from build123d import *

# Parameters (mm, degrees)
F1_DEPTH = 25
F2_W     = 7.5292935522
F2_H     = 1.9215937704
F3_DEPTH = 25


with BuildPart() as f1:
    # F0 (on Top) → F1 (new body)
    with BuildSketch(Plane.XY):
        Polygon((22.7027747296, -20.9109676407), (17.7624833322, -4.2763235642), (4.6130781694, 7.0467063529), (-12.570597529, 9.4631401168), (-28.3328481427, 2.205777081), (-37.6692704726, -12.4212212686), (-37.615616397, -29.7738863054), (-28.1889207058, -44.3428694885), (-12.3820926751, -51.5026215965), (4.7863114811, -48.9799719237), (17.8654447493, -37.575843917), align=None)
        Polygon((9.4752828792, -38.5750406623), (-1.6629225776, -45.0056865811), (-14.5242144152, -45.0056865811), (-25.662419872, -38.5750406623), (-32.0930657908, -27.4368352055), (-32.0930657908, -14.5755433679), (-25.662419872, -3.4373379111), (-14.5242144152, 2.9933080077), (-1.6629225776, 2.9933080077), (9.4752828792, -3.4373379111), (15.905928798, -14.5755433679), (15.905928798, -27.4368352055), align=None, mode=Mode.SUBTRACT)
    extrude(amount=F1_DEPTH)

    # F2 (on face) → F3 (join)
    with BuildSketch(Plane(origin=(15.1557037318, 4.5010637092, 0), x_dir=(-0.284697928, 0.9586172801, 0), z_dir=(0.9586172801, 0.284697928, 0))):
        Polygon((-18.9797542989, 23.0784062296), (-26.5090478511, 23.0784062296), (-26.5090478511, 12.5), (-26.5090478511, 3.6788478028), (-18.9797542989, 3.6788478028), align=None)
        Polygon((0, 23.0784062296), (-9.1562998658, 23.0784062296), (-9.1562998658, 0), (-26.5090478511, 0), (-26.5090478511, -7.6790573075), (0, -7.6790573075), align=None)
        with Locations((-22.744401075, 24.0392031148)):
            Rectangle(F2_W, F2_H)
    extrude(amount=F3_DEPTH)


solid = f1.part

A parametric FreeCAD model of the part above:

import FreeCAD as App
import Part
import Sketcher

V = App.Vector
Q = App.Units.Quantity

doc = App.newDocument("Part")
params = doc.addObject("Spreadsheet::Sheet", "Params")
for row, (alias, value) in enumerate([
    ("pad1_length", "25 mm"),
    ("pad2_length", "25 mm"),
], start=1):
    params.set(f"A{row}", alias)
    params.set(f"B{row}", "=" + value)
    params.setAlias(f"B{row}", alias)

body = doc.addObject("PartDesign::Body", "Body")
body.AllowCompound = True

# Sketch on XY plane
sketch1 = body.newObject("Sketcher::SketchObject", "Sketch")
sketch1.AttachmentSupport = (doc.getObject("XY_Plane"), [""])
sketch1.MapMode = "FlatFace"
sketch1.addGeometry(Part.LineSegment(V(23, -21, 0), V(18, -4, 0)), False)
sketch1.addGeometry(Part.LineSegment(V(18, -4, 0), V(5, 7, 0)), False)
sketch1.addGeometry(Part.LineSegment(V(5, 7, 0), V(-13, 9, 0)), False)
sketch1.addGeometry(Part.LineSegment(V(-13, 9, 0), V(-28, 2, 0)), False)
sketch1.addGeometry(Part.LineSegment(V(-28, 2, 0), V(-38, -12, 0)), False)
sketch1.addGeometry(Part.LineSegment(V(-38, -12, 0), V(-38, -30, 0)), False)
sketch1.addGeometry(Part.LineSegment(V(-38, -30, 0), V(-28, -44, 0)), False)
sketch1.addGeometry(Part.LineSegment(V(-28, -44, 0), V(-12, -52, 0)), False)
sketch1.addGeometry(Part.LineSegment(V(-12, -52, 0), V(5, -49, 0)), False)
sketch1.addGeometry(Part.LineSegment(V(5, -49, 0), V(18, -38, 0)), False)
sketch1.addGeometry(Part.LineSegment(V(18, -38, 0), V(23, -21, 0)), False)
sketch1.addGeometry(Part.LineSegment(V(16, -27, 0), V(9, -39, 0)), False)
sketch1.addGeometry(Part.LineSegment(V(9, -39, 0), V(-2, -45, 0)), False)
sketch1.addGeometry(Part.LineSegment(V(-2, -45, 0), V(-15, -45, 0)), False)
sketch1.addGeometry(Part.LineSegment(V(-15, -45, 0), V(-26, -39, 0)), False)
sketch1.addGeometry(Part.LineSegment(V(-26, -39, 0), V(-32, -27, 0)), False)
sketch1.addGeometry(Part.LineSegment(V(-32, -27, 0), V(-32, -15, 0)), False)
sketch1.addGeometry(Part.LineSegment(V(-32, -15, 0), V(-26, -3, 0)), False)
sketch1.addGeometry(Part.LineSegment(V(-26, -3, 0), V(-15, 3, 0)), False)
sketch1.addGeometry(Part.LineSegment(V(-15, 3, 0), V(-2, 3, 0)), False)
sketch1.addGeometry(Part.LineSegment(V(-2, 3, 0), V(9, -3, 0)), False)
sketch1.addGeometry(Part.LineSegment(V(9, -3, 0), V(16, -15, 0)), False)
sketch1.addGeometry(Part.LineSegment(V(16, -15, 0), V(16, -27, 0)), False)
sketch1.addConstraint(Sketcher.Constraint("Coincident", 0, 2, 1, 1))
sketch1.addConstraint(Sketcher.Constraint("Coincident", 1, 2, 2, 1))
sketch1.addConstraint(Sketcher.Constraint("Coincident", 2, 2, 3, 1))
sketch1.addConstraint(Sketcher.Constraint("Coincident", 3, 2, 4, 1))
sketch1.addConstraint(Sketcher.Constraint("Coincident", 4, 2, 5, 1))
sketch1.addConstraint(Sketcher.Constraint("Coincident", 5, 2, 6, 1))
sketch1.addConstraint(Sketcher.Constraint("Coincident", 6, 2, 7, 1))
sketch1.addConstraint(Sketcher.Constraint("Coincident", 7, 2, 8, 1))
sketch1.addConstraint(Sketcher.Constraint("Coincident", 8, 2, 9, 1))
sketch1.addConstraint(Sketcher.Constraint("Coincident", 9, 2, 10, 1))
sketch1.addConstraint(Sketcher.Constraint("Coincident", 10, 2, 0, 1))
sketch1.addConstraint(Sketcher.Constraint("Coincident", 11, 2, 12, 1))
sketch1.addConstraint(Sketcher.Constraint("Coincident", 12, 2, 13, 1))
sketch1.addConstraint(Sketcher.Constraint("Coincident", 13, 2, 14, 1))
sketch1.addConstraint(Sketcher.Constraint("Coincident", 14, 2, 15, 1))
sketch1.addConstraint(Sketcher.Constraint("Coincident", 15, 2, 16, 1))
sketch1.addConstraint(Sketcher.Constraint("Coincident", 16, 2, 17, 1))
sketch1.addConstraint(Sketcher.Constraint("Coincident", 17, 2, 18, 1))
sketch1.addConstraint(Sketcher.Constraint("Coincident", 18, 2, 19, 1))
sketch1.addConstraint(Sketcher.Constraint("Coincident", 19, 2, 20, 1))
sketch1.addConstraint(Sketcher.Constraint("Coincident", 20, 2, 21, 1))
sketch1.addConstraint(Sketcher.Constraint("Coincident", 21, 2, 22, 1))
sketch1.addConstraint(Sketcher.Constraint("Coincident", 22, 2, 11, 1))
sketch1.addConstraint(Sketcher.Constraint("Horizontal", 13))
sketch1.addConstraint(Sketcher.Constraint("Vertical", 16))
sketch1.addConstraint(Sketcher.Constraint("Horizontal", 19))
sketch1.addConstraint(Sketcher.Constraint("Vertical", 22))
sketch1.addConstraint(Sketcher.Constraint("Perpendicular", 11, 14))
sketch1.addConstraint(Sketcher.Constraint("Perpendicular", 12, 15))
sketch1.addConstraint(Sketcher.Constraint("Perpendicular", 14, 17))
sketch1.addConstraint(Sketcher.Constraint("Perpendicular", 15, 18))
sketch1.addConstraint(Sketcher.Constraint("Perpendicular", 17, 20))
sketch1.addConstraint(Sketcher.Constraint("Perpendicular", 18, 21))
sketch1.addConstraint(Sketcher.Constraint("Horizontal", 11, 2, 14, 2))
sketch1.addConstraint(Sketcher.Constraint("Horizontal", 17, 2, 20, 2))
sketch1.addConstraint(Sketcher.Constraint("Horizontal", 16, 2, 21, 2))
sketch1.addConstraint(Sketcher.Constraint("Horizontal", 15, 2, 22, 2))
sketch1.addConstraint(Sketcher.Constraint("Vertical", 14, 2, 17, 2))
sketch1.addConstraint(Sketcher.Constraint("Vertical", 13, 2, 18, 2))
sketch1.addConstraint(Sketcher.Constraint("Vertical", 12, 2, 19, 2))
sketch1.addConstraint(Sketcher.Constraint("Equal", 19, 16))
sketch1.addConstraint(Sketcher.Constraint("Equal", 0, 1))
sketch1.addConstraint(Sketcher.Constraint("Equal", 1, 2))
sketch1.addConstraint(Sketcher.Constraint("Equal", 2, 3))
sketch1.addConstraint(Sketcher.Constraint("Equal", 3, 4))
sketch1.addConstraint(Sketcher.Constraint("Equal", 4, 5))
sketch1.addConstraint(Sketcher.Constraint("Equal", 5, 6))
sketch1.addConstraint(Sketcher.Constraint("Equal", 6, 7))
sketch1.addConstraint(Sketcher.Constraint("Equal", 7, 8))
sketch1.addConstraint(Sketcher.Constraint("Equal", 8, 9))
sketch1.addConstraint(Sketcher.Constraint("Equal", 9, 10))
sketch1.addConstraint(Sketcher.Constraint("Equal", 11, 12))
sketch1.addConstraint(Sketcher.Constraint("Angle", 11, Q("-120 deg")))
sketch1.addConstraint(Sketcher.Constraint("DistanceY", 4, 2, 3, 2, 14.626998))
sketch1.addConstraint(Sketcher.Constraint("DistanceX", 6, 2, 1, 2, 32.801999))
sketch1.addConstraint(Sketcher.Constraint("DistanceX", 6, 2, 12, 2, 26.525998))
sketch1.addConstraint(Sketcher.Constraint("DistanceX", 13, 2, 13, 1, 12.861292))
sketch1.addConstraint(Sketcher.Constraint("DistanceY", 0, 2, 3, 2, 6.482101))
sketch1.addConstraint(Sketcher.Constraint("DistanceX", 5, 2, 0, 2, 55.3781))
sketch1.addConstraint(Sketcher.Constraint("DistanceY", 7, 2, 4, 2, 39.0814))
sketch1.addConstraint(Sketcher.Constraint("DistanceX", 11, 2, 0, 2, 8.2872))
sketch1.addConstraint(Sketcher.Constraint("DistanceX", 6, 2, 14, 2, 2.526501))
sketch1.addConstraint(Sketcher.Constraint("DistanceY", 18, 2, 1, 2, 4.053398))
sketch1.addConstraint(Sketcher.Constraint("DistanceY", 9, 2, 21, 2, 23.000301))
sketch1.addConstraint(Sketcher.Constraint("DistanceX", -1, 1, 1, 2, 4.613078))
sketch1.addConstraint(Sketcher.Constraint("DistanceY", -1, 1, 2, 2, 9.46314))
sketch1.addConstraint(Sketcher.Constraint("DistanceX", 3, 2, -1, 1, 28.332848))
sketch1.addConstraint(Sketcher.Constraint("DistanceX", 4, 2, -1, 1, 37.66927))
sketch1.addConstraint(Sketcher.Constraint("DistanceX", -1, 1, 8, 2, 4.786311))
pad1 = body.newObject("PartDesign::Pad", "Pad")
pad1.Profile = sketch1
pad1.setExpression("Length", "Params.pad1_length")

# Sketch on an angled plane
sketch2 = body.newObject("Sketcher::SketchObject", "Sketch001")
sketch2.Placement = App.Placement(V(15.155704, 4.501064, 0), App.Rotation(V(-0.284697928, 0.95861728, 0), V(0, 0, 1), V(0.95861728, 0.284697928, 0), "ZXY"))
sketch2.addGeometry(Part.LineSegment(V(-27, 4, 0), V(-19, 4, 0)), False)
sketch2.addGeometry(Part.LineSegment(V(-19, 4, 0), V(-19, 25, 0)), False)
sketch2.addGeometry(Part.LineSegment(V(-19, 25, 0), V(-27, 25, 0)), False)
sketch2.addGeometry(Part.LineSegment(V(-27, 25, 0), V(-27, 4, 0)), False)
sketch2.addGeometry(Part.LineSegment(V(0, 23, 0), V(-9, 23, 0)), False)
sketch2.addGeometry(Part.LineSegment(V(-9, 23, 0), V(-9, 0, 0)), False)
sketch2.addGeometry(Part.LineSegment(V(-9, 0, 0), V(-27, 0, 0)), False)
sketch2.addGeometry(Part.LineSegment(V(-27, 0, 0), V(-27, -8, 0)), False)
sketch2.addGeometry(Part.LineSegment(V(-27, -8, 0), V(0, -8, 0)), False)
sketch2.addGeometry(Part.LineSegment(V(0, -8, 0), V(0, 23, 0)), False)
sketch2.addConstraint(Sketcher.Constraint("Coincident", 0, 2, 1, 1))
sketch2.addConstraint(Sketcher.Constraint("Coincident", 1, 2, 2, 1))
sketch2.addConstraint(Sketcher.Constraint("Coincident", 2, 2, 3, 1))
sketch2.addConstraint(Sketcher.Constraint("Coincident", 3, 2, 0, 1))
sketch2.addConstraint(Sketcher.Constraint("Coincident", 4, 2, 5, 1))
sketch2.addConstraint(Sketcher.Constraint("Coincident", 5, 2, 6, 1))
sketch2.addConstraint(Sketcher.Constraint("Coincident", 6, 2, 7, 1))
sketch2.addConstraint(Sketcher.Constraint("Coincident", 7, 2, 8, 1))
sketch2.addConstraint(Sketcher.Constraint("Coincident", 8, 2, 9, 1))
sketch2.addConstraint(Sketcher.Constraint("Coincident", 9, 2, 4, 1))
sketch2.addConstraint(Sketcher.Constraint("Horizontal", 0))
sketch2.addConstraint(Sketcher.Constraint("Vertical", 1))
sketch2.addConstraint(Sketcher.Constraint("Horizontal", 2))
sketch2.addConstraint(Sketcher.Constraint("Vertical", 3))
sketch2.addConstraint(Sketcher.Constraint("Horizontal", 4))
sketch2.addConstraint(Sketcher.Constraint("Vertical", 5))
sketch2.addConstraint(Sketcher.Constraint("Horizontal", 6))
sketch2.addConstraint(Sketcher.Constraint("Vertical", 7))
sketch2.addConstraint(Sketcher.Constraint("Horizontal", 8))
sketch2.addConstraint(Sketcher.Constraint("Vertical", 9))
sketch2.addConstraint(Sketcher.Constraint("PointOnObject", 5, 2, -1))
sketch2.addConstraint(Sketcher.Constraint("PointOnObject", 8, 2, -2))
sketch2.addConstraint(Sketcher.Constraint("Vertical", 3, 2, 6, 2))
sketch2.addConstraint(Sketcher.Constraint("DistanceY", -1, 1, 1, 2, 25.0))
sketch2.addConstraint(Sketcher.Constraint("DistanceX", 4, 2, 4, 1, 9.1563))
sketch2.addConstraint(Sketcher.Constraint("DistanceX", 0, 1, 0, 2, 7.529294))
sketch2.addConstraint(Sketcher.Constraint("DistanceX", 6, 2, 6, 1, 17.352748))
sketch2.addConstraint(Sketcher.Constraint("DistanceY", 1, 1, 1, 2, 21.321152))
sketch2.addConstraint(Sketcher.Constraint("DistanceY", 5, 2, 5, 1, 23.078406))
sketch2.addConstraint(Sketcher.Constraint("DistanceY", 7, 2, 7, 1, 7.679057))
pad2 = body.newObject("PartDesign::Pad", "Pad001")
pad2.Profile = sketch2
pad2.setExpression("Length", "Params.pad2_length")

doc.recompute()
